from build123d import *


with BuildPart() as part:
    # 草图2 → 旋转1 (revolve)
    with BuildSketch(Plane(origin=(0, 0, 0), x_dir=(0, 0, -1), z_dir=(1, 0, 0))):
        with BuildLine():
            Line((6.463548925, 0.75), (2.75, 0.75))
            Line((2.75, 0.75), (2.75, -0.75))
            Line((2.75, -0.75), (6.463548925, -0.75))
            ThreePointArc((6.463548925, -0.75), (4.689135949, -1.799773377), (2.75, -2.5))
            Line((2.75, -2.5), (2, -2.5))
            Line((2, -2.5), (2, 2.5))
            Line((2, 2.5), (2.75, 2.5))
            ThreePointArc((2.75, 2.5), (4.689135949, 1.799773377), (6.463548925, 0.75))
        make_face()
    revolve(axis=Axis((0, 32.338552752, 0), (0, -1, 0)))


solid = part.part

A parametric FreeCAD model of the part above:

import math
import FreeCAD as App
import Part
import Sketcher
from FreeCAD import Vector

doc = App.newDocument("Part")
body = doc.addObject("PartDesign::Body", "Body")

# Sketch on YZ plane
sketch1 = body.newObject("Sketcher::SketchObject", "Sketch")
sketch1.AttachmentSupport = (doc.getObject("YZ_Plane"), [""])
sketch1.MapMode = "FlatFace"
sketch1.addGeometry(Part.LineSegment(Vector(0.8, -2.8, 0), Vector(0.8, -6.5, 0)), False)
sketch1.addGeometry(Part.ArcOfCircle(Part.Circle(Vector(-8.2, 0, 0), Vector(0, 0, 1), 11), math.radians(-36), math.radians(-14)), False)
sketch1.addGeometry(Part.LineSegment(Vector(2.5, -2.8, 0), Vector(2.5, -2, 0)), False)
sketch1.addGeometry(Part.LineSegment(Vector(2.5, -2, 0), Vector(-2.5, -2, 0)), False)
sketch1.addGeometry(Part.LineSegment(Vector(-2.5, -2, 0), Vector(-2.5, -2.8, 0)), False)
sketch1.addGeometry(Part.ArcOfCircle(Part.Circle(Vector(8.2, 0, 0), Vector(0, 0, 1), 11), math.radians(-166), math.radians(-144)), False)
sketch1.addGeometry(Part.LineSegment(Vector(-0.8, -6.5, 0), Vector(-0.8, -2.8, 0)), False)
sketch1.addGeometry(Part.LineSegment(Vector(-0.8, -2.8, 0), Vector(0.8, -2.8, 0)), False)
sketch1.addConstraint(Sketcher.Constraint("Coincident", 0, 2, 1, 1))
sketch1.addConstraint(Sketcher.Constraint("Coincident", 1, 2, 2, 1))
sketch1.addConstraint(Sketcher.Constraint("Coincident", 2, 2, 3, 1))
sketch1.addConstraint(Sketcher.Constraint("Coincident", 3, 2, 4, 1))
sketch1.addConstraint(Sketcher.Constraint("Coincident", 4, 2, 5, 1))
sketch1.addConstraint(Sketcher.Constraint("Coincident", 5, 2, 6, 1))
sketch1.addConstraint(Sketcher.Constraint("Coincident", 6, 2, 7, 1))
sketch1.addConstraint(Sketcher.Constraint("Coincident", 7, 2, 0, 1))
sketch1.addConstraint(Sketcher.Constraint("Vertical", 0))
sketch1.addConstraint(Sketcher.Constraint("Vertical", 2))
sketch1.addConstraint(Sketcher.Constraint("Horizontal", 3))
sketch1.addConstraint(Sketcher.Constraint("Vertical", 4))
sketch1.addConstraint(Sketcher.Constraint("Vertical", 6))
sketch1.addConstraint(Sketcher.Constraint("Horizontal", 7))
sketch1.addConstraint(Sketcher.Constraint("Equal", 1, 5))
sketch1.addConstraint(Sketcher.Constraint("Symmetric", 1, 3, 5, 3, -1, 1))
sketch1.addConstraint(Sketcher.Constraint("Symmetric", 1, 2, 4, 2, -2))
sketch1.addConstraint(Sketcher.Constraint("Horizontal", 0, 2, 5, 2))
sketch1.addConstraint(Sketcher.Constraint("Horizontal", 4, 2, 6, 2))
sketch1.addConstraint(Sketcher.Constraint("Radius", 1, 11.0))
sketch1.addConstraint(Sketcher.Constraint("DistanceX", 3, 2, 3, 1, 5.0))
sketch1.addConstraint(Sketcher.Constraint("DistanceX", 7, 1, 7, 2, 1.5))
sketch1.addConstraint(Sketcher.Constraint("DistanceY", 2, 2, -1, 1, 2.0))
sketch1.addConstraint(Sketcher.Constraint("DistanceY", 2, 1, 2, 2, 0.75))
revolution = body.newObject("PartDesign::Revolution", "Revolution")
revolution.Profile = sketch1
revolution.ReferenceAxis = (sketch1, ["H_Axis"])
revolution.Angle = 360

doc.recompute()
